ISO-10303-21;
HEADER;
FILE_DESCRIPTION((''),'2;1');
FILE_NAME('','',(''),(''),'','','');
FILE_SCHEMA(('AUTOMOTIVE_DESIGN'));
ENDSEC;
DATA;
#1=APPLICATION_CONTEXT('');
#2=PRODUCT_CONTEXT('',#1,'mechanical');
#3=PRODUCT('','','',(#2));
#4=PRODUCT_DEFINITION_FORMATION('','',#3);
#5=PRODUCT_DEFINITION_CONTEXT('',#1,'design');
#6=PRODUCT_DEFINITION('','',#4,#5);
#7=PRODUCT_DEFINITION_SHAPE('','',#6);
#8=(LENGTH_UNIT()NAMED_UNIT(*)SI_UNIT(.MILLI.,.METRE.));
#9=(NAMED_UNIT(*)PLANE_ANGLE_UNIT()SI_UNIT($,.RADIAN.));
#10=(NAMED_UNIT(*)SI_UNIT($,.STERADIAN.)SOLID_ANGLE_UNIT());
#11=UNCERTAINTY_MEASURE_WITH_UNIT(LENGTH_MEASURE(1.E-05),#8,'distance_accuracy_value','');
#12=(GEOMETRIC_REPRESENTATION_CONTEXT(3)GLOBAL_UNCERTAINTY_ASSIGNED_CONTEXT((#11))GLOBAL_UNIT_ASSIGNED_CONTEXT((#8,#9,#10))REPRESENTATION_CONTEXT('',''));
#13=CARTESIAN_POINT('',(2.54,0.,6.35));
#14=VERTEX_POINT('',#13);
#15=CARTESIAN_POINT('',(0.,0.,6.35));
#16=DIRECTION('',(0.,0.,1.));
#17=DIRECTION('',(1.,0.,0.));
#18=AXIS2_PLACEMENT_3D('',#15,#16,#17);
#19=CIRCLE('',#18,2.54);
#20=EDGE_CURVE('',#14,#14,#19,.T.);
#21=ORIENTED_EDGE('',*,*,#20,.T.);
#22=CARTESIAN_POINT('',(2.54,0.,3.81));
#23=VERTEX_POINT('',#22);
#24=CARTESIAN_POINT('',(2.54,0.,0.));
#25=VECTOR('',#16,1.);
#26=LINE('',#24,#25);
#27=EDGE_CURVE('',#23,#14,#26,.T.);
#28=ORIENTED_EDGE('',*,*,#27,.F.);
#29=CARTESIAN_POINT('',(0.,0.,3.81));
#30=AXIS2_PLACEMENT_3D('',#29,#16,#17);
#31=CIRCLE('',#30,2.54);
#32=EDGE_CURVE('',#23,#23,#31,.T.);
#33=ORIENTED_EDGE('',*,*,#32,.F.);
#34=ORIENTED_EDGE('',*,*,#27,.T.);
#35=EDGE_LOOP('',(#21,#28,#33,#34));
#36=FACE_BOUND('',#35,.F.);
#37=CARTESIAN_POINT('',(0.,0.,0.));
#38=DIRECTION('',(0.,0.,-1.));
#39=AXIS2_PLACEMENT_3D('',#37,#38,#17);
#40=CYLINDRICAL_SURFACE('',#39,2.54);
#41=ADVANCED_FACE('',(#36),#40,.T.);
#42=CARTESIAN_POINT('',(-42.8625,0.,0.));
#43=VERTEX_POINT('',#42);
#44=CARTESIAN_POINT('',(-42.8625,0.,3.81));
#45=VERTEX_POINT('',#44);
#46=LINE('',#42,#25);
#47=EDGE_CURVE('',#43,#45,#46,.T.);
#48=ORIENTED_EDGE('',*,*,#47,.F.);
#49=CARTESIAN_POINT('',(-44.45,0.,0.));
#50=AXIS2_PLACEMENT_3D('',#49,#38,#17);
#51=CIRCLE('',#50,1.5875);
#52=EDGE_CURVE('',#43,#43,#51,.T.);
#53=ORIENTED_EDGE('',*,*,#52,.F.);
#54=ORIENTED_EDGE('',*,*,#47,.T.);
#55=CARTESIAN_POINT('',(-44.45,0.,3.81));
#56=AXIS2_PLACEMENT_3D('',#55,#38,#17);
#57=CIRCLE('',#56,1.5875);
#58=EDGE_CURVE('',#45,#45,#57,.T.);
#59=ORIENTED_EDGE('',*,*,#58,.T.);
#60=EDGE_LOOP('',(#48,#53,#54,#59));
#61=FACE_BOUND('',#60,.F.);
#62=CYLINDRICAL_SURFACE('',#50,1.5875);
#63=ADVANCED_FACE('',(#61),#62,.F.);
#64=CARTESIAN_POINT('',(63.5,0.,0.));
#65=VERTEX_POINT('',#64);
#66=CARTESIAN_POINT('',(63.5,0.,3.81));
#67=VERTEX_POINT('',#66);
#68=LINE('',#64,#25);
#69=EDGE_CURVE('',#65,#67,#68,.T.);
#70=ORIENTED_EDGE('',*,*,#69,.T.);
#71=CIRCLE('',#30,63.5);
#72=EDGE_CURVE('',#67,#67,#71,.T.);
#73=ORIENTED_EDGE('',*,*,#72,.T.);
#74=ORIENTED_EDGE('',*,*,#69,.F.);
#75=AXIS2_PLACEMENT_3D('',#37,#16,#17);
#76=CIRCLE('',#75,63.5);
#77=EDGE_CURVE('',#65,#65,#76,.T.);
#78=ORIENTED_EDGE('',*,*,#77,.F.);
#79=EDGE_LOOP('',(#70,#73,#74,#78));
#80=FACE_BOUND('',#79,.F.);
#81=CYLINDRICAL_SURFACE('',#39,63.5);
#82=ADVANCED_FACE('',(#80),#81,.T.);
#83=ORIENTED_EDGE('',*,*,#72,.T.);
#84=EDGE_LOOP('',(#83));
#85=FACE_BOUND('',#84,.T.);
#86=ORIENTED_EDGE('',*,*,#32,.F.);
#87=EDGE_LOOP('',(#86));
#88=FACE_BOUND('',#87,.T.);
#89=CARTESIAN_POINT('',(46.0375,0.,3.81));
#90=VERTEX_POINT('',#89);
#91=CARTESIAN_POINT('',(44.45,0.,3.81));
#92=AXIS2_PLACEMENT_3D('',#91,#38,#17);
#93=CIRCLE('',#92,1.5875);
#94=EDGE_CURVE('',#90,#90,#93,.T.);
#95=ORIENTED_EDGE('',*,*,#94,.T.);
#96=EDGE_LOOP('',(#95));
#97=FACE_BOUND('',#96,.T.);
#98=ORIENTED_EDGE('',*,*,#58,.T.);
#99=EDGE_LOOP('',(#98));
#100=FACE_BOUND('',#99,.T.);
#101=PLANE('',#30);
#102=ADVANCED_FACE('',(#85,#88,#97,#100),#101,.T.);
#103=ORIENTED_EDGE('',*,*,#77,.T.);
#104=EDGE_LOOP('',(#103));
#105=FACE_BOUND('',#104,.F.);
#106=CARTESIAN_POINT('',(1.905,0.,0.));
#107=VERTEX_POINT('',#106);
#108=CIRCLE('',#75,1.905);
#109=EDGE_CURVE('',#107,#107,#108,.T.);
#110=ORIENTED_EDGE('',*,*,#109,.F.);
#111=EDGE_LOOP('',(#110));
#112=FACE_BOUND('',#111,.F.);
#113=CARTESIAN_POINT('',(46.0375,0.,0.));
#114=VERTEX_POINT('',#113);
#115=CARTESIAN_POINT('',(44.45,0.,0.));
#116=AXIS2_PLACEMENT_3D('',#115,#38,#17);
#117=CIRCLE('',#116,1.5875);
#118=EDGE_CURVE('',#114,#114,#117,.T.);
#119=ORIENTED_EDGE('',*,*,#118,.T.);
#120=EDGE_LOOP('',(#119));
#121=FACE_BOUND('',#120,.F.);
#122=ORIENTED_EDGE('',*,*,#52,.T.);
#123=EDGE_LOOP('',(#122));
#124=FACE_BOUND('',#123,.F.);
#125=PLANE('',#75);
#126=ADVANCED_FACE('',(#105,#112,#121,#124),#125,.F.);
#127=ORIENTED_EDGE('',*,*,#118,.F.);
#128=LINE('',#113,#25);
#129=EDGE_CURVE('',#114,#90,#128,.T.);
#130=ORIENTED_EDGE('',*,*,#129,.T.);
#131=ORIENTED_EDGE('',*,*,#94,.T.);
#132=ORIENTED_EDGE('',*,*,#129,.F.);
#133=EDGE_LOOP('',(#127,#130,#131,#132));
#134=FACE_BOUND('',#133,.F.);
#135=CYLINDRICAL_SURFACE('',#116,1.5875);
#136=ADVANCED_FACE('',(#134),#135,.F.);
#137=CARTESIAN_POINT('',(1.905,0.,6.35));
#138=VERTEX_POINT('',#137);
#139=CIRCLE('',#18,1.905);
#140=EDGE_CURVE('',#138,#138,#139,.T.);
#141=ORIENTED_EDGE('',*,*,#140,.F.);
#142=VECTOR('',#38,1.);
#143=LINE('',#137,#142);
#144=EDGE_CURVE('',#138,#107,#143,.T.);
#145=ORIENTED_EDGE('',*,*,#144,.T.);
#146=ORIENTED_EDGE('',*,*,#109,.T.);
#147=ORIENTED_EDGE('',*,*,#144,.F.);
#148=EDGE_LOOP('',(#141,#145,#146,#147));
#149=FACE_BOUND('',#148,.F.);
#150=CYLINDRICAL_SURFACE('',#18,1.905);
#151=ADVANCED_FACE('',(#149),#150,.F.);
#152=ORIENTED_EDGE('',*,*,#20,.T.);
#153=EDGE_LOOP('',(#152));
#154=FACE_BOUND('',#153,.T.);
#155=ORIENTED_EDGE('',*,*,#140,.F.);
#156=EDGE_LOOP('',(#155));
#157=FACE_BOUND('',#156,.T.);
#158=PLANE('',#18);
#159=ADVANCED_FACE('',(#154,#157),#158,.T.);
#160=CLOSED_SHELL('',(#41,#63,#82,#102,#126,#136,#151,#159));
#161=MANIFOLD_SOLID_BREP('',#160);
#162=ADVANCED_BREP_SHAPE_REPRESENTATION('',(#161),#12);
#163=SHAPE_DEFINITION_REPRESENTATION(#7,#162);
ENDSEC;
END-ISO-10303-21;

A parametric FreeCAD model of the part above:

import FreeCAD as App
import Part
import Sketcher
from FreeCAD import Vector
Q = App.Units.Quantity

doc = App.newDocument("Part")
body = doc.addObject("PartDesign::Body", "Body")

sketch1 = body.newObject("Sketcher::SketchObject", "Sketch")
sketch1.AttachmentSupport = (doc.getObject("XY_Plane"), [""])
sketch1.MapMode = "FlatFace"
sketch1.addGeometry(Part.Circle(Vector(0, 0, 0), Vector(0, 0, 1), 2.5), False)
sketch1.addConstraint(Sketcher.Constraint("Coincident", 0, 3, -1, 1))
sketch1.addConstraint(Sketcher.Constraint("Diameter", 0, Q("0.2 in")))
pad1 = body.newObject("PartDesign::Pad", "Pad")
pad1.Profile = sketch1
pad1.Length = Q("0.25 in")

sketch2 = body.newObject("Sketcher::SketchObject", "Sketch001")
sketch2.AttachmentSupport = (doc.getObject("XY_Plane"), [""])
sketch2.MapMode = "FlatFace"
sketch2.addGeometry(Part.Circle(Vector(0, 0, 0), Vector(0, 0, 1), 63.5), False)
sketch2.addGeometry(Part.Circle(Vector(0, 0, 0), Vector(0, 0, 1), 2.5), False)
sketch2.addConstraint(Sketcher.Constraint("Coincident", 0, 3, -1, 1))
sketch2.addConstraint(Sketcher.Constraint("Coincident", 1, 3, -1, 1))
sketch2.addConstraint(Sketcher.Constraint("Diameter", 0, Q("5 in")))
sketch2.addConstraint(Sketcher.Constraint("Diameter", 1, Q("0.2 in")))
pad2 = body.newObject("PartDesign::Pad", "Pad001")
pad2.Profile = sketch2
pad2.Length = Q("0.15 in")

sketch3 = body.newObject("Sketcher::SketchObject", "Sketch002")
sketch3.AttachmentSupport = (doc.getObject("XY_Plane"), [""])
sketch3.MapMode = "FlatFace"
sketch3.AttachmentOffset = App.Placement(Vector(0, 0, 0.25 * 25.4), App.Rotation())
sketch3.addGeometry(Part.Circle(Vector(0, 0, 0), Vector(0, 0, 1), 1.9), False)
sketch3.addConstraint(Sketcher.Constraint("Coincident", 0, 3, -1, 1))
sketch3.addConstraint(Sketcher.Constraint("Diameter", 0, Q("0.15 in")))
pocket1 = body.newObject("PartDesign::Pocket", "Pocket")
pocket1.Profile = sketch3
pocket1.Length = Q("1.6 in")

sketch4 = body.newObject("Sketcher::SketchObject", "Sketch003")
sketch4.AttachmentSupport = (doc.getObject("XY_Plane"), [""])
sketch4.MapMode = "FlatFace"
sketch4.addGeometry(Part.Circle(Vector(44.5, 0, 0), Vector(0, 0, 1), 1.6), False)
sketch4.addGeometry(Part.Circle(Vector(-44.5, 0, 0), Vector(0, 0, 1), 1.6), False)
sketch4.addConstraint(Sketcher.Constraint("Equal", 0, 1))
sketch4.addConstraint(Sketcher.Constraint("Symmetric", 0, 3, 1, 3, -1, 1))
sketch4.addConstraint(Sketcher.Constraint("PointOnObject", 0, 3, -1))
sketch4.addConstraint(Sketcher.Constraint("Diameter", 0, Q("0.125 in")))
sketch4.addConstraint(Sketcher.Constraint("DistanceX", 1, 3, 0, 3, Q("3.5 in")))
pocket2 = body.newObject("PartDesign::Pocket", "Pocket001")
pocket2.Profile = sketch4
pocket2.Length = Q("1 in")
pocket2.Reversed = True

doc.recompute()
